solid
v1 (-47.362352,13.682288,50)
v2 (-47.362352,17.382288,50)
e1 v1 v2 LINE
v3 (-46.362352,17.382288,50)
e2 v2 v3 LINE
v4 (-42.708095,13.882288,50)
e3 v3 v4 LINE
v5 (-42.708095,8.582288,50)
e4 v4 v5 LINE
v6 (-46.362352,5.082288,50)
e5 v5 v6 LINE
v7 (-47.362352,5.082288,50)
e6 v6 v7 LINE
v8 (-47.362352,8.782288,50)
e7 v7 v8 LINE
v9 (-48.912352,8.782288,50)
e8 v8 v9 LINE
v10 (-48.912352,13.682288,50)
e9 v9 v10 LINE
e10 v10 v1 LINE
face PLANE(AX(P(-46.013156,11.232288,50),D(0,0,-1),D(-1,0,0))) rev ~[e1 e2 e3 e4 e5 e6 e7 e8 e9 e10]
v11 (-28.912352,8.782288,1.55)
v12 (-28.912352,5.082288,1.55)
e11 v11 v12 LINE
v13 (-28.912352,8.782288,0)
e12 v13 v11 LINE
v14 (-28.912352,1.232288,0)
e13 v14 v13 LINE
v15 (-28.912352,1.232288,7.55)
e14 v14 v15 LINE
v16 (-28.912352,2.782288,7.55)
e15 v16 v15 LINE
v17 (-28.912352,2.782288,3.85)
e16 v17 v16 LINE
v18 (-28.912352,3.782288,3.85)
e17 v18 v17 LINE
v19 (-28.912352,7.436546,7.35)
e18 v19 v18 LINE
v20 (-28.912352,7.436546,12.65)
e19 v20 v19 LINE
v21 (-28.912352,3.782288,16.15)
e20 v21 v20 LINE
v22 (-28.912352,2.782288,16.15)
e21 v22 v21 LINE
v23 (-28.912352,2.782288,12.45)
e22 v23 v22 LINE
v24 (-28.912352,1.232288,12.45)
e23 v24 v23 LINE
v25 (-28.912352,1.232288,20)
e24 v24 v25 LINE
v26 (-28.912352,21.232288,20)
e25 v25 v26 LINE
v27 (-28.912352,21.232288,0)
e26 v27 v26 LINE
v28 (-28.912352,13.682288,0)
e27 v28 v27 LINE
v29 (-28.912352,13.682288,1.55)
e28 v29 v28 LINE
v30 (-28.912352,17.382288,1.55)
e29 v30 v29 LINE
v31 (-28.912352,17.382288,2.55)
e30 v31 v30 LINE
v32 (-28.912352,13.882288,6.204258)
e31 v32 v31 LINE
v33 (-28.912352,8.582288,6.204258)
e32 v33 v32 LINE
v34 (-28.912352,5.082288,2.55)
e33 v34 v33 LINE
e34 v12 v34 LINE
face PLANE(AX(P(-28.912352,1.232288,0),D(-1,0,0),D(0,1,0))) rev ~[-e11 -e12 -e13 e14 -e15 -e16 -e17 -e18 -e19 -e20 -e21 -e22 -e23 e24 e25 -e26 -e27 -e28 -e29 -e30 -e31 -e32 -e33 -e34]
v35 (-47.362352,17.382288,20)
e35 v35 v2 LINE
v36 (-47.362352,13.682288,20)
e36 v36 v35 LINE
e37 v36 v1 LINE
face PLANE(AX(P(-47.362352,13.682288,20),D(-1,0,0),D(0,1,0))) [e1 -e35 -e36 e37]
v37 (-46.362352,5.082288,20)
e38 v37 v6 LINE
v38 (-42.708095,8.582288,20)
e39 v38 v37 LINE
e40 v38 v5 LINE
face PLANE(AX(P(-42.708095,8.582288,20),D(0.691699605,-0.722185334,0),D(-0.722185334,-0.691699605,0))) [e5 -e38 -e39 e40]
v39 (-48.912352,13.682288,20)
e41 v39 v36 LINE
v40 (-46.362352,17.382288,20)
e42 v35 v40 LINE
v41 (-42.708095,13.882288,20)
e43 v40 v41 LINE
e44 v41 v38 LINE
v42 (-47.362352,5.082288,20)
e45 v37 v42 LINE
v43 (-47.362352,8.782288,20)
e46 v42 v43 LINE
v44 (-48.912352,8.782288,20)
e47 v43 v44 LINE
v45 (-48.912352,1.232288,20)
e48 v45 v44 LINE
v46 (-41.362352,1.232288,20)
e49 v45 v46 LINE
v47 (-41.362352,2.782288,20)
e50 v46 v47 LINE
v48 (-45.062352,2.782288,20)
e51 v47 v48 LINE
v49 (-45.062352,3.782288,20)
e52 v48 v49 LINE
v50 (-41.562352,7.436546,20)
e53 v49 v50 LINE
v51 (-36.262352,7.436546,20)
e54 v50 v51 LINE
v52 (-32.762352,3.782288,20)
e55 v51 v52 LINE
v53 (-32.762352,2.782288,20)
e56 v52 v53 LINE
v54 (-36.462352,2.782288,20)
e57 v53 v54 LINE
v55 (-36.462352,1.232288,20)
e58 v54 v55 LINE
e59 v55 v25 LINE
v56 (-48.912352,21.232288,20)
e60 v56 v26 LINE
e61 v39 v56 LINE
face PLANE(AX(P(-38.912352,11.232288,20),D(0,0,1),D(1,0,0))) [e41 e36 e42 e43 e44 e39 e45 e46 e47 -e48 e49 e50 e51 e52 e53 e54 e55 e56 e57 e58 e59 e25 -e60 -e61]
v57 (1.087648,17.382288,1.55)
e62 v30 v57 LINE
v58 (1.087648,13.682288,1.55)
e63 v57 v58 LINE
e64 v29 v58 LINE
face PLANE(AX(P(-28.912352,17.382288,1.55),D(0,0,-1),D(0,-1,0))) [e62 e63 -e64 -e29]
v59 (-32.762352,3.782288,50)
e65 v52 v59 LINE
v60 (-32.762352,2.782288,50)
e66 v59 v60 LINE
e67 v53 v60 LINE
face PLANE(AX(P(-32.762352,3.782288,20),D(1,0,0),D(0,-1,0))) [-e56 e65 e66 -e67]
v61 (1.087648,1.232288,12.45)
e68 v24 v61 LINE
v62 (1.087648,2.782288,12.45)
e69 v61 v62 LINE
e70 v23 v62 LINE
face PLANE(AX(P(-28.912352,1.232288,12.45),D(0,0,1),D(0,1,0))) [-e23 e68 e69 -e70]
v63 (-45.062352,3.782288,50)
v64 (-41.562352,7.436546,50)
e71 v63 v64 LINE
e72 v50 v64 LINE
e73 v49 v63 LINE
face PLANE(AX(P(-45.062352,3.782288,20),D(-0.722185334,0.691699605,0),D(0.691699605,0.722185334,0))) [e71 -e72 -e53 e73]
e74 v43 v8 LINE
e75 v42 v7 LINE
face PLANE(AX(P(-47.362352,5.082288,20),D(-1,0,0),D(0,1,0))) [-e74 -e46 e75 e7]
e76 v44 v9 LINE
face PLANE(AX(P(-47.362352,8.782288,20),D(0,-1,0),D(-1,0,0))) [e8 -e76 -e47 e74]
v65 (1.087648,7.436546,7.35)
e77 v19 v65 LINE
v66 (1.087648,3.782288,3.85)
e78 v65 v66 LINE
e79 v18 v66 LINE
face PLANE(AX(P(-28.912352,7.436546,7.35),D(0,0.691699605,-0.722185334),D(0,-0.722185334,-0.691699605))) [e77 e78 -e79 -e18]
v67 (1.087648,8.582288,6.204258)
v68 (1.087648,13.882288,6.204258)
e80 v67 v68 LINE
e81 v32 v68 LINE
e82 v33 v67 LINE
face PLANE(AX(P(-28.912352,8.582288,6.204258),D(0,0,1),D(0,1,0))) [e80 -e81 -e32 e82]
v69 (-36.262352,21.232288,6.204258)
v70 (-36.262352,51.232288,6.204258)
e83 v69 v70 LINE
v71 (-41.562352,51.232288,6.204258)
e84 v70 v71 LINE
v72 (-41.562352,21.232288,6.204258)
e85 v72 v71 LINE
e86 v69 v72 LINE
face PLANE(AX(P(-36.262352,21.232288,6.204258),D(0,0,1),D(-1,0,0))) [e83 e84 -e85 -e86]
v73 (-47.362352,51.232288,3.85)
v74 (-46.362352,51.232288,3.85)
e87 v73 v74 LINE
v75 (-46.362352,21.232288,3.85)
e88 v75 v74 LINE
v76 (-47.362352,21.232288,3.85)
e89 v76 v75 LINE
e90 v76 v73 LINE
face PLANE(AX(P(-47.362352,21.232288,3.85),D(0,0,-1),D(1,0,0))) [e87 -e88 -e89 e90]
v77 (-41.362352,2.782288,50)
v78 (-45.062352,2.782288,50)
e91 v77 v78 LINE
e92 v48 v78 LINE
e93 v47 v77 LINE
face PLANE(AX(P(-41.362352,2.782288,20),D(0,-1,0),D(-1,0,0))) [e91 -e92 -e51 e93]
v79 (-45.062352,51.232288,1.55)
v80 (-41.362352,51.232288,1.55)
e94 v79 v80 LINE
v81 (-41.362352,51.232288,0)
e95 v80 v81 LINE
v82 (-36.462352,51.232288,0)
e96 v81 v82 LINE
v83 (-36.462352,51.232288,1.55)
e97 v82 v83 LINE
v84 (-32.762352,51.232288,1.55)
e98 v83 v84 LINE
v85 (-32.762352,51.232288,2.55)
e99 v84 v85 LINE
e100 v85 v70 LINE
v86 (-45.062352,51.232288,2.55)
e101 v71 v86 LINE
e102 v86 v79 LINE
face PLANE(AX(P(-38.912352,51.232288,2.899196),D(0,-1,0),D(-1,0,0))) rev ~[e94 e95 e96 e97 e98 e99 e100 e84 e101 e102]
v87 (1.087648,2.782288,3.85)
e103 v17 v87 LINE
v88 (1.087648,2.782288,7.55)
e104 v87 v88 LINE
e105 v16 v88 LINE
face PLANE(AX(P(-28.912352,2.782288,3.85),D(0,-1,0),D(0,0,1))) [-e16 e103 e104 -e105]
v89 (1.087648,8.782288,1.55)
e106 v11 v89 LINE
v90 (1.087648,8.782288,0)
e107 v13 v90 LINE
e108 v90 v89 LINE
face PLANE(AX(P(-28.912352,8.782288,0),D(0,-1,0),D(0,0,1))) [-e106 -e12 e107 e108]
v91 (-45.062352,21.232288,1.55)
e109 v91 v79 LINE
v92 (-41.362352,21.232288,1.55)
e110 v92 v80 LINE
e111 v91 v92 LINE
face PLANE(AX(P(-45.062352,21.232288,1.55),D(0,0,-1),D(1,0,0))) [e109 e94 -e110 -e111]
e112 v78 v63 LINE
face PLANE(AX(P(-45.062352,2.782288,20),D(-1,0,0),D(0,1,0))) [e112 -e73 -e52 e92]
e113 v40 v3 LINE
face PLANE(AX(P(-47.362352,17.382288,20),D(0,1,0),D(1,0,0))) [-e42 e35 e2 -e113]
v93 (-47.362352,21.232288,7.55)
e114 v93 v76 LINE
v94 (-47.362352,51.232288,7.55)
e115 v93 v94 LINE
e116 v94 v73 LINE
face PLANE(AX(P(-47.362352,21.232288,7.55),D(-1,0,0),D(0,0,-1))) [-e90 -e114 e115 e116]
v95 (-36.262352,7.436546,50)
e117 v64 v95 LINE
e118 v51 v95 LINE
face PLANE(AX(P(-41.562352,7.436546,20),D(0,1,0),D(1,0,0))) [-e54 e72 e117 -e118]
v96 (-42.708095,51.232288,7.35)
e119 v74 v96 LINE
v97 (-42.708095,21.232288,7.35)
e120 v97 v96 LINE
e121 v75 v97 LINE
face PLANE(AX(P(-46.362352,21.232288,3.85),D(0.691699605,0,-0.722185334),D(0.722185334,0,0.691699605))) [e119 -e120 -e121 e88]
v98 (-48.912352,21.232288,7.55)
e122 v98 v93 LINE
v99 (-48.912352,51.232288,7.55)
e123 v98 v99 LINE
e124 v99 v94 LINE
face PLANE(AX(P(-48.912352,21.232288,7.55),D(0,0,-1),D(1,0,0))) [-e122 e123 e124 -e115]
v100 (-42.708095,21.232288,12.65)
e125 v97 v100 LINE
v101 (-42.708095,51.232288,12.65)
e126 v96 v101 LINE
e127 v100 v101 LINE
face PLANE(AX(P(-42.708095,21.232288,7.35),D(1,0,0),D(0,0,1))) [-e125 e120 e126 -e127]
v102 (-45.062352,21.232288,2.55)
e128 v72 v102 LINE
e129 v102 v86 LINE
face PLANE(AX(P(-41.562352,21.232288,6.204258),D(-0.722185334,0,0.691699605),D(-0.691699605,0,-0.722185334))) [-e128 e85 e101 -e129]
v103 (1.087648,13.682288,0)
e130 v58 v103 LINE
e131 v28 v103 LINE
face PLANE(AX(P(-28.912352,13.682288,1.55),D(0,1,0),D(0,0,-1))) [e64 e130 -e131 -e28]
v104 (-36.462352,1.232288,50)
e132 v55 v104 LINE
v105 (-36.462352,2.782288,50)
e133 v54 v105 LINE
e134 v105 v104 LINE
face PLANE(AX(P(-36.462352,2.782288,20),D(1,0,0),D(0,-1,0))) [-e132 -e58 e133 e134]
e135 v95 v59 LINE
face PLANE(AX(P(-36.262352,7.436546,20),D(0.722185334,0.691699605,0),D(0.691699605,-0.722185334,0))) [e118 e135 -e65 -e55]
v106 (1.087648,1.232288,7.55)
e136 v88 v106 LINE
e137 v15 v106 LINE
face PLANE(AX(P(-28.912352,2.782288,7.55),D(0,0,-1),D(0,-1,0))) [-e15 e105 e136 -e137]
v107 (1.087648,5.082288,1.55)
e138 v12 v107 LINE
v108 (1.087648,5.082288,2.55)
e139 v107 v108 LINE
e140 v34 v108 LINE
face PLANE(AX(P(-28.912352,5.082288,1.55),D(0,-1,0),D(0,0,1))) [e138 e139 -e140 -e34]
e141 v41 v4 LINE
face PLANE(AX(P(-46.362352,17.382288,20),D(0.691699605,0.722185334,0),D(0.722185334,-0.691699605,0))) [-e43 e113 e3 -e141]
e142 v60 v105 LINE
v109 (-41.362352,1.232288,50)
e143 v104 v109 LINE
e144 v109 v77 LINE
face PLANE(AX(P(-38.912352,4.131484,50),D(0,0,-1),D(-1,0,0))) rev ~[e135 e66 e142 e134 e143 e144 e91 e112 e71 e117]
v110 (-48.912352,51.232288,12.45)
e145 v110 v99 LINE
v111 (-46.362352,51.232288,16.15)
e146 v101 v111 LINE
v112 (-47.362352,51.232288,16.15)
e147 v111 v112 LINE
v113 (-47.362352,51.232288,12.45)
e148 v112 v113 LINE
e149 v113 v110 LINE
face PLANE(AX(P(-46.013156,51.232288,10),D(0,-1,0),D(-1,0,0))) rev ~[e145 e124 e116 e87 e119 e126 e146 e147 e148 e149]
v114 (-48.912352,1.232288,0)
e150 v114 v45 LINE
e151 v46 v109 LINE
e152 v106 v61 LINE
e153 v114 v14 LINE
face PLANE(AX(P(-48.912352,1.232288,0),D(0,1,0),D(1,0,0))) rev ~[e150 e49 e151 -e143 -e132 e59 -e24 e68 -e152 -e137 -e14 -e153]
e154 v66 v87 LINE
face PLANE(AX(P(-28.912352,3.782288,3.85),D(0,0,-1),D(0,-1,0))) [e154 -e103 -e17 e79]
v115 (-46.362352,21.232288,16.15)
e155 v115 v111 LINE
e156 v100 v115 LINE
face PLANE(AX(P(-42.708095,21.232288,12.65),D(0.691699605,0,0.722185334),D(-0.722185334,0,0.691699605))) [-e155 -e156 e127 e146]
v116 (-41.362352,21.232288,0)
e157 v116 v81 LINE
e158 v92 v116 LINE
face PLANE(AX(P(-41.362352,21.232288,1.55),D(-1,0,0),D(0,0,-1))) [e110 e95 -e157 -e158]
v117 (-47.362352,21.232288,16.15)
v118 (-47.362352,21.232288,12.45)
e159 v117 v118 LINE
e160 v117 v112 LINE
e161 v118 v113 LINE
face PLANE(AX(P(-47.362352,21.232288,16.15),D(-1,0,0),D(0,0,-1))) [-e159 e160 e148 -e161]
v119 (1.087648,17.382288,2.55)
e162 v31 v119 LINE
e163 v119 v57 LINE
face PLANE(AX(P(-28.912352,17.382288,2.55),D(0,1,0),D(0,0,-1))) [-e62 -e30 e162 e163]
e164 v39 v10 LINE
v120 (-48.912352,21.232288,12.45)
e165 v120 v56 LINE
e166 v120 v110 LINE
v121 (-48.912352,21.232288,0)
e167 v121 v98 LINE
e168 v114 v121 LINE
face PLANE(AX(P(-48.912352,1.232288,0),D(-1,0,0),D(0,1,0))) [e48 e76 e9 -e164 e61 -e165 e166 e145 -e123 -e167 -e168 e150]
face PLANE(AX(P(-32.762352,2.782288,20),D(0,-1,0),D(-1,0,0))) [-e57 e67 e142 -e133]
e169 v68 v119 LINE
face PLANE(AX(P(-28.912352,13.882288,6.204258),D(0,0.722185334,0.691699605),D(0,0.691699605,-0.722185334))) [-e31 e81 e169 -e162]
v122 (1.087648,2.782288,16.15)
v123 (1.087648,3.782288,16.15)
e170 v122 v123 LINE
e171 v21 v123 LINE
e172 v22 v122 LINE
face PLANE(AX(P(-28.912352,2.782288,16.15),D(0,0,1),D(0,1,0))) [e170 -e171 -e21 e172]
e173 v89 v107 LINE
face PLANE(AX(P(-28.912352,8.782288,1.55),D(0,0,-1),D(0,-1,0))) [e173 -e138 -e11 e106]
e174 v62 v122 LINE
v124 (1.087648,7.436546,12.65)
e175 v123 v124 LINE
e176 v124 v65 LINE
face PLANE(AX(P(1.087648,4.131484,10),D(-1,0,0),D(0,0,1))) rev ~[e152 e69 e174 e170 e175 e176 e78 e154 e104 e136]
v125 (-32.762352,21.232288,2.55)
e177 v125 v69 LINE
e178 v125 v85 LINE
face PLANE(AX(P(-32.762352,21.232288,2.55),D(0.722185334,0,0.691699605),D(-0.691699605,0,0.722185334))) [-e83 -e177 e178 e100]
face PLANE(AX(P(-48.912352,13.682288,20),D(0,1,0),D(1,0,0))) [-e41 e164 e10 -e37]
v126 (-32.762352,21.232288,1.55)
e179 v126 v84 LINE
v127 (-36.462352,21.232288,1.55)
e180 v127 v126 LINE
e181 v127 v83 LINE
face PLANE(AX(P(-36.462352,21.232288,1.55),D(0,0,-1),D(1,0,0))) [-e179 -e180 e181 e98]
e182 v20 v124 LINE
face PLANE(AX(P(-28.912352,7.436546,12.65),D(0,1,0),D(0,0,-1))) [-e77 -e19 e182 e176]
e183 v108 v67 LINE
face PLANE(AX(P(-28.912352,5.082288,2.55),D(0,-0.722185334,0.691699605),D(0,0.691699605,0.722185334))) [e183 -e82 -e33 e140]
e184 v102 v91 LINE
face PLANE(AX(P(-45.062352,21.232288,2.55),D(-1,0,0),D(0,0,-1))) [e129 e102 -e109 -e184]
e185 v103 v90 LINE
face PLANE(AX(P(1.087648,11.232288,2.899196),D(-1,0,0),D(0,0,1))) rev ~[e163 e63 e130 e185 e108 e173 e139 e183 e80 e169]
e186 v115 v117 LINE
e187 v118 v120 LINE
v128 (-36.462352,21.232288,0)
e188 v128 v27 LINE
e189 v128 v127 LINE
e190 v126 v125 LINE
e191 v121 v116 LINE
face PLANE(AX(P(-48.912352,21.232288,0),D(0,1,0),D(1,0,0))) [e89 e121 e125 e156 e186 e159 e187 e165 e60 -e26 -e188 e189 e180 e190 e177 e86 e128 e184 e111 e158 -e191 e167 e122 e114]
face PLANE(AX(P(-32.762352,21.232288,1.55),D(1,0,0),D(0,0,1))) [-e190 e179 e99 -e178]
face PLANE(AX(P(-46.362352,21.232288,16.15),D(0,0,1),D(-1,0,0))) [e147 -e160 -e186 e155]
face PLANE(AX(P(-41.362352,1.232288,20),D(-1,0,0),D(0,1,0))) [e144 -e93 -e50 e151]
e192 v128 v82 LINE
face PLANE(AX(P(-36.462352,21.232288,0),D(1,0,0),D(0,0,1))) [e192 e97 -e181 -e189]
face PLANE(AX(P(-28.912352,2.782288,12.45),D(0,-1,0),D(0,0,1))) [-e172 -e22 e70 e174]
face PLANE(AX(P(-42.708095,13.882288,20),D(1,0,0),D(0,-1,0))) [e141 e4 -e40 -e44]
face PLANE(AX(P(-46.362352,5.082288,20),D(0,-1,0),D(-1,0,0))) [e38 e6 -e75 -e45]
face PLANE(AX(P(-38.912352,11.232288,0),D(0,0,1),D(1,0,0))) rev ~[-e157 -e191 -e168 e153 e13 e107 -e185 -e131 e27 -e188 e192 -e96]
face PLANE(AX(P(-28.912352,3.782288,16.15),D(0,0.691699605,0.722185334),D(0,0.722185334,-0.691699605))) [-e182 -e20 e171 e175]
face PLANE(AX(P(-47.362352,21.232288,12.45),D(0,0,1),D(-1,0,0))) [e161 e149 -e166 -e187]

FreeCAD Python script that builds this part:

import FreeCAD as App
import Part
import Sketcher

doc = App.newDocument("Part")
params = doc.addObject("Spreadsheet::Sheet", "Params")
for row, (alias, value) in enumerate([
    ("sketch1_width", "20 mm"),
    ("pad1_length", "20 mm"),
    ("sketch2_height", "1 mm"),
    ("sketch2_width", "4.9 mm"),
    ("sketch2_width2", "3.7 mm"),
    ("sketch2_width3", "5.3 mm"),
    ("sketch2_height2", "1.55 mm"),
    ("pad2_length", "30 mm"),
    ("sketch3_height", "1 mm"),
    ("sketch3_width", "4.9 mm"),
    ("sketch3_width2", "3.7 mm"),
    ("sketch3_width3", "5.3 mm"),
    ("sketch3_height2", "1.55 mm"),
    ("pad3_length", "30 mm"),
    ("sketch4_height", "1 mm"),
    ("sketch4_width", "4.9 mm"),
    ("sketch4_width2", "3.7 mm"),
    ("sketch4_width3", "5.3 mm"),
    ("sketch4_height2", "1.55 mm"),
    ("pad4_length", "30 mm"),
    ("sketch5_width", "1 mm"),
    ("sketch5_height", "4.9 mm"),
    ("sketch5_height2", "3.7 mm"),
    ("sketch5_height3", "5.3 mm"),
    ("sketch5_width2", "1.55 mm"),
    ("pad5_length", "30 mm"),
    ("sketch6_width", "1 mm"),
    ("sketch6_height", "4.9 mm"),
    ("sketch6_height2", "3.7 mm"),
    ("sketch6_height3", "5.3 mm"),
    ("sketch6_width2", "1.55 mm"),
    ("pad6_length", "30 mm"),
    ("sketch7_width", "1 mm"),
    ("sketch7_height", "4.9 mm"),
    ("sketch7_height2", "3.7 mm"),
    ("sketch7_height3", "5.3 mm"),
    ("sketch7_width2", "1.55 mm"),
    ("pad7_length", "30 mm"),
], start=1):
    params.set(f"A{row}", alias)
    params.set(f"B{row}", "=" + value)
    params.setAlias(f"B{row}", alias)

body = doc.addObject("PartDesign::Body", "Body")

sketch1 = body.newObject("Sketcher::SketchObject", "Sketch")
sketch1.AttachmentSupport = (doc.getObject("XY_Plane"), [""])
sketch1.MapMode = "FlatFace"
sketch1.addGeometry(Part.LineSegment(App.Vector(-48.912352, 21.232288, 0), App.Vector(-48.912352, 1.232288, 0)), False)
sketch1.addGeometry(Part.LineSegment(App.Vector(-48.912352, 1.232288, 0), App.Vector(-28.912352, 1.232288, 0)), False)
sketch1.addGeometry(Part.LineSegment(App.Vector(-28.912352, 1.232288, 0), App.Vector(-28.912352, 21.232288, 0)), False)
sketch1.addGeometry(Part.LineSegment(App.Vector(-28.912352, 21.232288, 0), App.Vector(-48.912352, 21.232288, 0)), False)
sketch1.addConstraint(Sketcher.Constraint("Coincident", 0, 2, 1, 1))
sketch1.addConstraint(Sketcher.Constraint("Coincident", 1, 2, 2, 1))
sketch1.addConstraint(Sketcher.Constraint("Coincident", 2, 2, 3, 1))
sketch1.addConstraint(Sketcher.Constraint("Coincident", 3, 2, 0, 1))
sketch1.addConstraint(Sketcher.Constraint("Vertical", 0))
sketch1.addConstraint(Sketcher.Constraint("Horizontal", 1))
sketch1.addConstraint(Sketcher.Constraint("Vertical", 2))
sketch1.addConstraint(Sketcher.Constraint("Horizontal", 3))
sketch1.addConstraint(Sketcher.Constraint("Equal", 3, 0))
sketch1.addConstraint(Sketcher.Constraint("DistanceX", 1, 1, 1, 2, 20.0))
sketch1.addConstraint(Sketcher.Constraint("DistanceX", 0, 2, -1, 1, 48.912352))
sketch1.addConstraint(Sketcher.Constraint("DistanceY", -1, 1, 0, 2, 1.232288))
sketch1.setExpression("Constraints[9]", "Params.sketch1_width")
pad1 = body.newObject("PartDesign::Pad", "Pad")
pad1.Profile = sketch1
pad1.setExpression("Length", "Params.pad1_length")

sketch2 = body.newObject("Sketcher::SketchObject", "Sketch001")
sketch2.AttachmentSupport = (doc.getObject("XY_Plane"), [""])
sketch2.MapMode = "FlatFace"
sketch2.AttachmentOffset = App.Placement(App.Vector(0, 0, 20), App.Rotation())
sketch2.addGeometry(Part.LineSegment(App.Vector(-41.362352, 2.782288, 0), App.Vector(-41.362352, 1.232288, 0)), False)
sketch2.addGeometry(Part.LineSegment(App.Vector(-41.362352, 1.232288, 0), App.Vector(-36.462352, 1.232288, 0)), False)
sketch2.addGeometry(Part.LineSegment(App.Vector(-36.462352, 1.232288, 0), App.Vector(-36.462352, 2.782288, 0)), False)
sketch2.addGeometry(Part.LineSegment(App.Vector(-36.462352, 2.782288, 0), App.Vector(-32.762352, 2.782288, 0)), False)
sketch2.addGeometry(Part.LineSegment(App.Vector(-32.762352, 2.782288, 0), App.Vector(-32.762352, 3.782288, 0)), False)
sketch2.addGeometry(Part.LineSegment(App.Vector(-32.762352, 3.782288, 0), App.Vector(-36.262352, 7.436546, 0)), False)
sketch2.addGeometry(Part.LineSegment(App.Vector(-36.262352, 7.436546, 0), App.Vector(-41.562352, 7.436546, 0)), False)
sketch2.addGeometry(Part.LineSegment(App.Vector(-41.562352, 7.436546, 0), App.Vector(-45.062352, 3.782288, 0)), False)
sketch2.addGeometry(Part.LineSegment(App.Vector(-45.062352, 3.782288, 0), App.Vector(-45.062352, 2.782288, 0)), False)
sketch2.addGeometry(Part.LineSegment(App.Vector(-45.062352, 2.782288, 0), App.Vector(-41.362352, 2.782288, 0)), False)
sketch2.addConstraint(Sketcher.Constraint("Coincident", 0, 2, 1, 1))
sketch2.addConstraint(Sketcher.Constraint("Coincident", 1, 2, 2, 1))
sketch2.addConstraint(Sketcher.Constraint("Coincident", 2, 2, 3, 1))
sketch2.addConstraint(Sketcher.Constraint("Coincident", 3, 2, 4, 1))
sketch2.addConstraint(Sketcher.Constraint("Coincident", 4, 2, 5, 1))
sketch2.addConstraint(Sketcher.Constraint("Coincident", 5, 2, 6, 1))
sketch2.addConstraint(Sketcher.Constraint("Coincident", 6, 2, 7, 1))
sketch2.addConstraint(Sketcher.Constraint("Coincident", 7, 2, 8, 1))
sketch2.addConstraint(Sketcher.Constraint("Coincident", 8, 2, 9, 1))
sketch2.addConstraint(Sketcher.Constraint("Coincident", 9, 2, 0, 1))
sketch2.addConstraint(Sketcher.Constraint("Vertical", 0))
sketch2.addConstraint(Sketcher.Constraint("Horizontal", 1))
sketch2.addConstraint(Sketcher.Constraint("Vertical", 2))
sketch2.addConstraint(Sketcher.Constraint("Horizontal", 3))
sketch2.addConstraint(Sketcher.Constraint("Vertical", 4))
sketch2.addConstraint(Sketcher.Constraint("Horizontal", 6))
sketch2.addConstraint(Sketcher.Constraint("Vertical", 8))
sketch2.addConstraint(Sketcher.Constraint("Horizontal", 9))
sketch2.addConstraint(Sketcher.Constraint("Horizontal", 4, 2, 7, 2))
sketch2.addConstraint(Sketcher.Constraint("Horizontal", 3, 2, 8, 2))
sketch2.addConstraint(Sketcher.Constraint("Equal", 3, 9))
sketch2.addConstraint(Sketcher.Constraint("Equal", 5, 7))
sketch2.addConstraint(Sketcher.Constraint("DistanceY", 4, 1, 4, 2, 1.0))
sketch2.addConstraint(Sketcher.Constraint("DistanceX", 1, 1, 1, 2, 4.9))
sketch2.addConstraint(Sketcher.Constraint("DistanceX", 3, 1, 3, 2, 3.7))
sketch2.addConstraint(Sketcher.Constraint("DistanceX", 6, 2, 6, 1, 5.3))
sketch2.addConstraint(Sketcher.Constraint("DistanceY", 0, 2, 0, 1, 1.55))
sketch2.addConstraint(Sketcher.Constraint("Distance", 5, 5.06))
sketch2.addConstraint(Sketcher.Constraint("DistanceX", 0, 2, -1, 1, 41.362352))
sketch2.addConstraint(Sketcher.Constraint("DistanceY", -1, 1, 0, 2, 1.232288))
sketch2.setExpression("Constraints[22]", "Params.sketch2_height")
sketch2.setExpression("Constraints[23]", "Params.sketch2_width")
sketch2.setExpression("Constraints[24]", "Params.sketch2_width2")
sketch2.setExpression("Constraints[25]", "Params.sketch2_width3")
sketch2.setExpression("Constraints[26]", "Params.sketch2_height2")
pad2 = body.newObject("PartDesign::Pad", "Pad001")
pad2.Profile = sketch2
pad2.setExpression("Length", "Params.pad2_length")

sketch3 = body.newObject("Sketcher::SketchObject", "Sketch002")
sketch3.AttachmentSupport = (doc.getObject("YZ_Plane"), [""])
sketch3.MapMode = "FlatFace"
sketch3.AttachmentOffset = App.Placement(App.Vector(0, 0, -28.912352), App.Rotation())
sketch3.addGeometry(Part.LineSegment(App.Vector(8.782288, 1.55, 0), App.Vector(8.782288, 0, 0)), False)
sketch3.addGeometry(Part.LineSegment(App.Vector(8.782288, 0, 0), App.Vector(13.682288, 0, 0)), False)
sketch3.addGeometry(Part.LineSegment(App.Vector(13.682288, 0, 0), App.Vector(13.682288, 1.55, 0)), False)
sketch3.addGeometry(Part.LineSegment(App.Vector(13.682288, 1.55, 0), App.Vector(17.382288, 1.55, 0)), False)
sketch3.addGeometry(Part.LineSegment(App.Vector(17.382288, 1.55, 0), App.Vector(17.382288, 2.55, 0)), False)
sketch3.addGeometry(Part.LineSegment(App.Vector(17.382288, 2.55, 0), App.Vector(13.882288, 6.204258, 0)), False)
sketch3.addGeometry(Part.LineSegment(App.Vector(13.882288, 6.204258, 0), App.Vector(8.582288, 6.204258, 0)), False)
sketch3.addGeometry(Part.LineSegment(App.Vector(8.582288, 6.204258, 0), App.Vector(5.082288, 2.55, 0)), False)
sketch3.addGeometry(Part.LineSegment(App.Vector(5.082288, 2.55, 0), App.Vector(5.082288, 1.55, 0)), False)
sketch3.addGeometry(Part.LineSegment(App.Vector(5.082288, 1.55, 0), App.Vector(8.782288, 1.55, 0)), False)
sketch3.addConstraint(Sketcher.Constraint("Coincident", 0, 2, 1, 1))
sketch3.addConstraint(Sketcher.Constraint("Coincident", 1, 2, 2, 1))
sketch3.addConstraint(Sketcher.Constraint("Coincident", 2, 2, 3, 1))
sketch3.addConstraint(Sketcher.Constraint("Coincident", 3, 2, 4, 1))
sketch3.addConstraint(Sketcher.Constraint("Coincident", 4, 2, 5, 1))
sketch3.addConstraint(Sketcher.Constraint("Coincident", 5, 2, 6, 1))
sketch3.addConstraint(Sketcher.Constraint("Coincident", 6, 2, 7, 1))
sketch3.addConstraint(Sketcher.Constraint("Coincident", 7, 2, 8, 1))
sketch3.addConstraint(Sketcher.Constraint("Coincident", 8, 2, 9, 1))
sketch3.addConstraint(Sketcher.Constraint("Coincident", 9, 2, 0, 1))
sketch3.addConstraint(Sketcher.Constraint("Vertical", 0))
sketch3.addConstraint(Sketcher.Constraint("Horizontal", 1))
sketch3.addConstraint(Sketcher.Constraint("Vertical", 2))
sketch3.addConstraint(Sketcher.Constraint("Horizontal", 3))
sketch3.addConstraint(Sketcher.Constraint("Vertical", 4))
sketch3.addConstraint(Sketcher.Constraint("Horizontal", 6))
sketch3.addConstraint(Sketcher.Constraint("Vertical", 8))
sketch3.addConstraint(Sketcher.Constraint("Horizontal", 9))
sketch3.addConstraint(Sketcher.Constraint("PointOnObject", 0, 2, -1))
sketch3.addConstraint(Sketcher.Constraint("Horizontal", 4, 2, 7, 2))
sketch3.addConstraint(Sketcher.Constraint("Horizontal", 3, 2, 8, 2))
sketch3.addConstraint(Sketcher.Constraint("Equal", 3, 9))
sketch3.addConstraint(Sketcher.Constraint("Equal", 5, 7))
sketch3.addConstraint(Sketcher.Constraint("DistanceY", 4, 1, 4, 2, 1.0))
sketch3.addConstraint(Sketcher.Constraint("DistanceX", 1, 1, 1, 2, 4.9))
sketch3.addConstraint(Sketcher.Constraint("DistanceX", 3, 1, 3, 2, 3.7))
sketch3.addConstraint(Sketcher.Constraint("DistanceX", 6, 2, 6, 1, 5.3))
sketch3.addConstraint(Sketcher.Constraint("DistanceY", 0, 2, 0, 1, 1.55))
sketch3.addConstraint(Sketcher.Constraint("Distance", 5, 5.06))
sketch3.addConstraint(Sketcher.Constraint("DistanceX", -1, 1, 0, 2, 8.782288))
sketch3.setExpression("Constraints[23]", "Params.sketch3_height")
sketch3.setExpression("Constraints[24]", "Params.sketch3_width")
sketch3.setExpression("Constraints[25]", "Params.sketch3_width2")
sketch3.setExpression("Constraints[26]", "Params.sketch3_width3")
sketch3.setExpression("Constraints[27]", "Params.sketch3_height2")
pad3 = body.newObject("PartDesign::Pad", "Pad002")
pad3.Profile = sketch3
pad3.setExpression("Length", "Params.pad3_length")

sketch4 = body.newObject("Sketcher::SketchObject", "Sketch003")
sketch4.AttachmentSupport = (doc.getObject("XZ_Plane"), [""])
sketch4.MapMode = "FlatFace"
sketch4.AttachmentOffset = App.Placement(App.Vector(0, 0, -21.232288), App.Rotation())
sketch4.addGeometry(Part.LineSegment(App.Vector(-36.462352, 1.55, 0), App.Vector(-36.462352, 0, 0)), False)
sketch4.addGeometry(Part.LineSegment(App.Vector(-36.462352, 0, 0), App.Vector(-41.362352, 0, 0)), False)
sketch4.addGeometry(Part.LineSegment(App.Vector(-41.362352, 0, 0), App.Vector(-41.362352, 1.55, 0)), False)
sketch4.addGeometry(Part.LineSegment(App.Vector(-41.362352, 1.55, 0), App.Vector(-45.062352, 1.55, 0)), False)
sketch4.addGeometry(Part.LineSegment(App.Vector(-45.062352, 1.55, 0), App.Vector(-45.062352, 2.55, 0)), False)
sketch4.addGeometry(Part.LineSegment(App.Vector(-45.062352, 2.55, 0), App.Vector(-41.562352, 6.204258, 0)), False)
sketch4.addGeometry(Part.LineSegment(App.Vector(-41.562352, 6.204258, 0), App.Vector(-36.262352, 6.204258, 0)), False)
sketch4.addGeometry(Part.LineSegment(App.Vector(-36.262352, 6.204258, 0), App.Vector(-32.762352, 2.55, 0)), False)
sketch4.addGeometry(Part.LineSegment(App.Vector(-32.762352, 2.55, 0), App.Vector(-32.762352, 1.55, 0)), False)
sketch4.addGeometry(Part.LineSegment(App.Vector(-32.762352, 1.55, 0), App.Vector(-36.462352, 1.55, 0)), False)
sketch4.addConstraint(Sketcher.Constraint("Coincident", 0, 2, 1, 1))
sketch4.addConstraint(Sketcher.Constraint("Coincident", 1, 2, 2, 1))
sketch4.addConstraint(Sketcher.Constraint("Coincident", 2, 2, 3, 1))
sketch4.addConstraint(Sketcher.Constraint("Coincident", 3, 2, 4, 1))
sketch4.addConstraint(Sketcher.Constraint("Coincident", 4, 2, 5, 1))
sketch4.addConstraint(Sketcher.Constraint("Coincident", 5, 2, 6, 1))
sketch4.addConstraint(Sketcher.Constraint("Coincident", 6, 2, 7, 1))
sketch4.addConstraint(Sketcher.Constraint("Coincident", 7, 2, 8, 1))
sketch4.addConstraint(Sketcher.Constraint("Coincident", 8, 2, 9, 1))
sketch4.addConstraint(Sketcher.Constraint("Coincident", 9, 2, 0, 1))
sketch4.addConstraint(Sketcher.Constraint("Vertical", 0))
sketch4.addConstraint(Sketcher.Constraint("Horizontal", 1))
sketch4.addConstraint(Sketcher.Constraint("Vertical", 2))
sketch4.addConstraint(Sketcher.Constraint("Horizontal", 3))
sketch4.addConstraint(Sketcher.Constraint("Vertical", 4))
sketch4.addConstraint(Sketcher.Constraint("Horizontal", 6))
sketch4.addConstraint(Sketcher.Constraint("Vertical", 8))
sketch4.addConstraint(Sketcher.Constraint("Horizontal", 9))
sketch4.addConstraint(Sketcher.Constraint("PointOnObject", 0, 2, -1))
sketch4.addConstraint(Sketcher.Constraint("Horizontal", 4, 2, 7, 2))
sketch4.addConstraint(Sketcher.Constraint("Horizontal", 3, 2, 8, 2))
sketch4.addConstraint(Sketcher.Constraint("Equal", 3, 9))
sketch4.addConstraint(Sketcher.Constraint("Equal", 5, 7))
sketch4.addConstraint(Sketcher.Constraint("DistanceY", 4, 1, 4, 2, 1.0))
sketch4.addConstraint(Sketcher.Constraint("DistanceX", 1, 2, 1, 1, 4.9))
sketch4.addConstraint(Sketcher.Constraint("DistanceX", 3, 2, 3, 1, 3.7))
sketch4.addConstraint(Sketcher.Constraint("DistanceX", 6, 1, 6, 2, 5.3))
sketch4.addConstraint(Sketcher.Constraint("DistanceY", 0, 2, 0, 1, 1.55))
sketch4.addConstraint(Sketcher.Constraint("Distance", 5, 5.06))
sketch4.addConstraint(Sketcher.Constraint("DistanceX", 0, 2, -1, 1, 36.462352))
sketch4.setExpression("Constraints[23]", "Params.sketch4_height")
sketch4.setExpression("Constraints[24]", "Params.sketch4_width")
sketch4.setExpression("Constraints[25]", "Params.sketch4_width2")
sketch4.setExpression("Constraints[26]", "Params.sketch4_width3")
sketch4.setExpression("Constraints[27]", "Params.sketch4_height2")
pad4 = body.newObject("PartDesign::Pad", "Pad003")
pad4.Profile = sketch4
pad4.setExpression("Length", "Params.pad4_length")
pad4.Reversed = True

sketch5 = body.newObject("Sketcher::SketchObject", "Sketch004")
sketch5.AttachmentSupport = (doc.getObject("YZ_Plane"), [""])
sketch5.MapMode = "FlatFace"
sketch5.AttachmentOffset = App.Placement(App.Vector(0, 0, -28.912352), App.Rotation())
sketch5.addGeometry(Part.LineSegment(App.Vector(2.782288, 12.45, 0), App.Vector(1.232288, 12.45, 0)), False)
sketch5.addGeometry(Part.LineSegment(App.Vector(1.232288, 12.45, 0), App.Vector(1.232288, 7.55, 0)), False)
sketch5.addGeometry(Part.LineSegment(App.Vector(1.232288, 7.55, 0), App.Vector(2.782288, 7.55, 0)), False)
sketch5.addGeometry(Part.LineSegment(App.Vector(2.782288, 7.55, 0), App.Vector(2.782288, 3.85, 0)), False)
sketch5.addGeometry(Part.LineSegment(App.Vector(2.782288, 3.85, 0), App.Vector(3.782288, 3.85, 0)), False)
sketch5.addGeometry(Part.LineSegment(App.Vector(3.782288, 3.85, 0), App.Vector(7.436546, 7.35, 0)), False)
sketch5.addGeometry(Part.LineSegment(App.Vector(7.436546, 7.35, 0), App.Vector(7.436546, 12.65, 0)), False)
sketch5.addGeometry(Part.LineSegment(App.Vector(7.436546, 12.65, 0), App.Vector(3.782288, 16.15, 0)), False)
sketch5.addGeometry(Part.LineSegment(App.Vector(3.782288, 16.15, 0), App.Vector(2.782288, 16.15, 0)), False)
sketch5.addGeometry(Part.LineSegment(App.Vector(2.782288, 16.15, 0), App.Vector(2.782288, 12.45, 0)), False)
sketch5.addConstraint(Sketcher.Constraint("Coincident", 0, 2, 1, 1))
sketch5.addConstraint(Sketcher.Constraint("Coincident", 1, 2, 2, 1))
sketch5.addConstraint(Sketcher.Constraint("Coincident", 2, 2, 3, 1))
sketch5.addConstraint(Sketcher.Constraint("Coincident", 3, 2, 4, 1))
sketch5.addConstraint(Sketcher.Constraint("Coincident", 4, 2, 5, 1))
sketch5.addConstraint(Sketcher.Constraint("Coincident", 5, 2, 6, 1))
sketch5.addConstraint(Sketcher.Constraint("Coincident", 6, 2, 7, 1))
sketch5.addConstraint(Sketcher.Constraint("Coincident", 7, 2, 8, 1))
sketch5.addConstraint(Sketcher.Constraint("Coincident", 8, 2, 9, 1))
sketch5.addConstraint(Sketcher.Constraint("Coincident", 9, 2, 0, 1))
sketch5.addConstraint(Sketcher.Constraint("Horizontal", 0))
sketch5.addConstraint(Sketcher.Constraint("Vertical", 1))
sketch5.addConstraint(Sketcher.Constraint("Horizontal", 2))
sketch5.addConstraint(Sketcher.Constraint("Vertical", 3))
sketch5.addConstraint(Sketcher.Constraint("Horizontal", 4))
sketch5.addConstraint(Sketcher.Constraint("Vertical", 6))
sketch5.addConstraint(Sketcher.Constraint("Horizontal", 8))
sketch5.addConstraint(Sketcher.Constraint("Vertical", 9))
sketch5.addConstraint(Sketcher.Constraint("Vertical", 4, 2, 7, 2))
sketch5.addConstraint(Sketcher.Constraint("Vertical", 3, 2, 8, 2))
sketch5.addConstraint(Sketcher.Constraint("Equal", 3, 9))
sketch5.addConstraint(Sketcher.Constraint("Equal", 5, 7))
sketch5.addConstraint(Sketcher.Constraint("DistanceX", 4, 1, 4, 2, 1.0))
sketch5.addConstraint(Sketcher.Constraint("DistanceY", 1, 2, 1, 1, 4.9))
sketch5.addConstraint(Sketcher.Constraint("DistanceY", 3, 2, 3, 1, 3.7))
sketch5.addConstraint(Sketcher.Constraint("DistanceY", 6, 1, 6, 2, 5.3))
sketch5.addConstraint(Sketcher.Constraint("DistanceX", 0, 2, 0, 1, 1.55))
sketch5.addConstraint(Sketcher.Constraint("Distance", 5, 5.06))
sketch5.addConstraint(Sketcher.Constraint("DistanceY", -1, 1, 0, 2, 12.45))
sketch5.addConstraint(Sketcher.Constraint("DistanceX", -1, 1, 0, 2, 1.232288))
sketch5.setExpression("Constraints[22]", "Params.sketch5_width")
sketch5.setExpression("Constraints[23]", "Params.sketch5_height")
sketch5.setExpression("Constraints[24]", "Params.sketch5_height2")
sketch5.setExpression("Constraints[25]", "Params.sketch5_height3")
sketch5.setExpression("Constraints[26]", "Params.sketch5_width2")
pad5 = body.newObject("PartDesign::Pad", "Pad004")
pad5.Profile = sketch5
pad5.setExpression("Length", "Params.pad5_length")

sketch6 = body.newObject("Sketcher::SketchObject", "Sketch005")
sketch6.AttachmentSupport = (doc.getObject("XZ_Plane"), [""])
sketch6.MapMode = "FlatFace"
sketch6.AttachmentOffset = App.Placement(App.Vector(0, 0, -21.232288), App.Rotation())
sketch6.addGeometry(Part.LineSegment(App.Vector(-47.362352, 7.55, 0), App.Vector(-48.912352, 7.55, 0)), False)
sketch6.addGeometry(Part.LineSegment(App.Vector(-48.912352, 7.55, 0), App.Vector(-48.912352, 12.45, 0)), False)
sketch6.addGeometry(Part.LineSegment(App.Vector(-48.912352, 12.45, 0), App.Vector(-47.362352, 12.45, 0)), False)
sketch6.addGeometry(Part.LineSegment(App.Vector(-47.362352, 12.45, 0), App.Vector(-47.362352, 16.15, 0)), False)
sketch6.addGeometry(Part.LineSegment(App.Vector(-47.362352, 16.15, 0), App.Vector(-46.362352, 16.15, 0)), False)
sketch6.addGeometry(Part.LineSegment(App.Vector(-46.362352, 16.15, 0), App.Vector(-42.708095, 12.65, 0)), False)
sketch6.addGeometry(Part.LineSegment(App.Vector(-42.708095, 12.65, 0), App.Vector(-42.708095, 7.35, 0)), False)
sketch6.addGeometry(Part.LineSegment(App.Vector(-42.708095, 7.35, 0), App.Vector(-46.362352, 3.85, 0)), False)
sketch6.addGeometry(Part.LineSegment(App.Vector(-46.362352, 3.85, 0), App.Vector(-47.362352, 3.85, 0)), False)
sketch6.addGeometry(Part.LineSegment(App.Vector(-47.362352, 3.85, 0), App.Vector(-47.362352, 7.55, 0)), False)
sketch6.addConstraint(Sketcher.Constraint("Coincident", 0, 2, 1, 1))
sketch6.addConstraint(Sketcher.Constraint("Coincident", 1, 2, 2, 1))
sketch6.addConstraint(Sketcher.Constraint("Coincident", 2, 2, 3, 1))
sketch6.addConstraint(Sketcher.Constraint("Coincident", 3, 2, 4, 1))
sketch6.addConstraint(Sketcher.Constraint("Coincident", 4, 2, 5, 1))
sketch6.addConstraint(Sketcher.Constraint("Coincident", 5, 2, 6, 1))
sketch6.addConstraint(Sketcher.Constraint("Coincident", 6, 2, 7, 1))
sketch6.addConstraint(Sketcher.Constraint("Coincident", 7, 2, 8, 1))
sketch6.addConstraint(Sketcher.Constraint("Coincident", 8, 2, 9, 1))
sketch6.addConstraint(Sketcher.Constraint("Coincident", 9, 2, 0, 1))
sketch6.addConstraint(Sketcher.Constraint("Horizontal", 0))
sketch6.addConstraint(Sketcher.Constraint("Vertical", 1))
sketch6.addConstraint(Sketcher.Constraint("Horizontal", 2))
sketch6.addConstraint(Sketcher.Constraint("Vertical", 3))
sketch6.addConstraint(Sketcher.Constraint("Horizontal", 4))
sketch6.addConstraint(Sketcher.Constraint("Vertical", 6))
sketch6.addConstraint(Sketcher.Constraint("Horizontal", 8))
sketch6.addConstraint(Sketcher.Constraint("Vertical", 9))
sketch6.addConstraint(Sketcher.Constraint("Vertical", 4, 2, 7, 2))
sketch6.addConstraint(Sketcher.Constraint("Vertical", 3, 2, 8, 2))
sketch6.addConstraint(Sketcher.Constraint("Equal", 3, 9))
sketch6.addConstraint(Sketcher.Constraint("Equal", 5, 7))
sketch6.addConstraint(Sketcher.Constraint("DistanceX", 4, 1, 4, 2, 1.0))
sketch6.addConstraint(Sketcher.Constraint("DistanceY", 1, 1, 1, 2, 4.9))
sketch6.addConstraint(Sketcher.Constraint("DistanceY", 3, 1, 3, 2, 3.7))
sketch6.addConstraint(Sketcher.Constraint("DistanceY", 6, 2, 6, 1, 5.3))
sketch6.addConstraint(Sketcher.Constraint("DistanceX", 0, 2, 0, 1, 1.55))
sketch6.addConstraint(Sketcher.Constraint("Distance", 5, 5.06))
sketch6.addConstraint(Sketcher.Constraint("DistanceY", -1, 1, 0, 2, 7.55))
sketch6.addConstraint(Sketcher.Constraint("DistanceX", 0, 2, -1, 1, 48.912352))
sketch6.setExpression("Constraints[22]", "Params.sketch6_width")
sketch6.setExpression("Constraints[23]", "Params.sketch6_height")
sketch6.setExpression("Constraints[24]", "Params.sketch6_height2")
sketch6.setExpression("Constraints[25]", "Params.sketch6_height3")
sketch6.setExpression("Constraints[26]", "Params.sketch6_width2")
pad6 = body.newObject("PartDesign::Pad", "Pad005")
pad6.Profile = sketch6
pad6.setExpression("Length", "Params.pad6_length")
pad6.Reversed = True

sketch7 = body.newObject("Sketcher::SketchObject", "Sketch006")
sketch7.AttachmentSupport = (doc.getObject("XY_Plane"), [""])
sketch7.MapMode = "FlatFace"
sketch7.AttachmentOffset = App.Placement(App.Vector(0, 0, 20), App.Rotation())
sketch7.addGeometry(Part.LineSegment(App.Vector(-47.362352, 13.682288, 0), App.Vector(-48.912352, 13.682288, 0)), False)
sketch7.addGeometry(Part.LineSegment(App.Vector(-48.912352, 13.682288, 0), App.Vector(-48.912352, 8.782288, 0)), False)
sketch7.addGeometry(Part.LineSegment(App.Vector(-48.912352, 8.782288, 0), App.Vector(-47.362352, 8.782288, 0)), False)
sketch7.addGeometry(Part.LineSegment(App.Vector(-47.362352, 8.782288, 0), App.Vector(-47.362352, 5.082288, 0)), False)
sketch7.addGeometry(Part.LineSegment(App.Vector(-47.362352, 5.082288, 0), App.Vector(-46.362352, 5.082288, 0)), False)
sketch7.addGeometry(Part.LineSegment(App.Vector(-46.362352, 5.082288, 0), App.Vector(-42.708095, 8.582288, 0)), False)
sketch7.addGeometry(Part.LineSegment(App.Vector(-42.708095, 8.582288, 0), App.Vector(-42.708095, 13.882288, 0)), False)
sketch7.addGeometry(Part.LineSegment(App.Vector(-42.708095, 13.882288, 0), App.Vector(-46.362352, 17.382288, 0)), False)
sketch7.addGeometry(Part.LineSegment(App.Vector(-46.362352, 17.382288, 0), App.Vector(-47.362352, 17.382288, 0)), False)
sketch7.addGeometry(Part.LineSegment(App.Vector(-47.362352, 17.382288, 0), App.Vector(-47.362352, 13.682288, 0)), False)
sketch7.addConstraint(Sketcher.Constraint("Coincident", 0, 2, 1, 1))
sketch7.addConstraint(Sketcher.Constraint("Coincident", 1, 2, 2, 1))
sketch7.addConstraint(Sketcher.Constraint("Coincident", 2, 2, 3, 1))
sketch7.addConstraint(Sketcher.Constraint("Coincident", 3, 2, 4, 1))
sketch7.addConstraint(Sketcher.Constraint("Coincident", 4, 2, 5, 1))
sketch7.addConstraint(Sketcher.Constraint("Coincident", 5, 2, 6, 1))
sketch7.addConstraint(Sketcher.Constraint("Coincident", 6, 2, 7, 1))
sketch7.addConstraint(Sketcher.Constraint("Coincident", 7, 2, 8, 1))
sketch7.addConstraint(Sketcher.Constraint("Coincident", 8, 2, 9, 1))
sketch7.addConstraint(Sketcher.Constraint("Coincident", 9, 2, 0, 1))
sketch7.addConstraint(Sketcher.Constraint("Horizontal", 0))
sketch7.addConstraint(Sketcher.Constraint("Vertical", 1))
sketch7.addConstraint(Sketcher.Constraint("Horizontal", 2))
sketch7.addConstraint(Sketcher.Constraint("Vertical", 3))
sketch7.addConstraint(Sketcher.Constraint("Horizontal", 4))
sketch7.addConstraint(Sketcher.Constraint("Vertical", 6))
sketch7.addConstraint(Sketcher.Constraint("Horizontal", 8))
sketch7.addConstraint(Sketcher.Constraint("Vertical", 9))
sketch7.addConstraint(Sketcher.Constraint("Vertical", 4, 2, 7, 2))
sketch7.addConstraint(Sketcher.Constraint("Vertical", 3, 2, 8, 2))
sketch7.addConstraint(Sketcher.Constraint("Equal", 3, 9))
sketch7.addConstraint(Sketcher.Constraint("Equal", 5, 7))
sketch7.addConstraint(Sketcher.Constraint("DistanceX", 4, 1, 4, 2, 1.0))
sketch7.addConstraint(Sketcher.Constraint("DistanceY", 1, 2, 1, 1, 4.9))
sketch7.addConstraint(Sketcher.Constraint("DistanceY", 3, 2, 3, 1, 3.7))
sketch7.addConstraint(Sketcher.Constraint("DistanceY", 6, 1, 6, 2, 5.3))
sketch7.addConstraint(Sketcher.Constraint("DistanceX", 0, 2, 0, 1, 1.55))
sketch7.addConstraint(Sketcher.Constraint("Distance", 5, 5.06))
sketch7.addConstraint(Sketcher.Constraint("DistanceX", 0, 2, -1, 1, 48.912352))
sketch7.addConstraint(Sketcher.Constraint("DistanceY", -1, 1, 0, 2, 13.682288))
sketch7.setExpression("Constraints[22]", "Params.sketch7_width")
sketch7.setExpression("Constraints[23]", "Params.sketch7_height")
sketch7.setExpression("Constraints[24]", "Params.sketch7_height2")
sketch7.setExpression("Constraints[25]", "Params.sketch7_height3")
sketch7.setExpression("Constraints[26]", "Params.sketch7_width2")
pad7 = body.newObject("PartDesign::Pad", "Pad006")
pad7.Profile = sketch7
pad7.setExpression("Length", "Params.pad7_length")

doc.recompute()
